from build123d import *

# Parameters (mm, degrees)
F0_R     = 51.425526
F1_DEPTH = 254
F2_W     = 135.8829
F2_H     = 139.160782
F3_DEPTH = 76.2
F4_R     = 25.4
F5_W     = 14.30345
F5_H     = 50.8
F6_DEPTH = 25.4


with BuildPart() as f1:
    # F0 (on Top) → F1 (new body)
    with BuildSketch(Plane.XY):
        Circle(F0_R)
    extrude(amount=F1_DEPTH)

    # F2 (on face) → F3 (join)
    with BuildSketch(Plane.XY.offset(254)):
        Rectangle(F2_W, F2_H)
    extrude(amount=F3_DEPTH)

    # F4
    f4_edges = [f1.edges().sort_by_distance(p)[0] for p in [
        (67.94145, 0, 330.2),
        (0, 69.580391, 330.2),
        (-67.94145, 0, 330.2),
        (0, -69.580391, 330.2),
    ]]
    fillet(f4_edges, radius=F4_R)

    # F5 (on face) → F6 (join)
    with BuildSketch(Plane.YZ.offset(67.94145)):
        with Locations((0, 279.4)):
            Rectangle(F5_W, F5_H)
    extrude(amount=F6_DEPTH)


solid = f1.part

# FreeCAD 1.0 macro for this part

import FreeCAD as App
import Part
import Sketcher

V = App.Vector
Q = App.Units.Quantity


def edges_at(feature, points):
    """Names of the edges that pass closest to the given points."""
    edges = feature.Shape.Edges
    near = lambda p: min(range(len(edges)), key=lambda i: edges[i].distToShape(Part.Vertex(*p))[0])
    return sorted({f"Edge{near(p) + 1}" for p in points})


def add_polygon(sketch, points):
    """Adds a closed chain of lines whose ends are joined by coincident constraints."""
    first, n = sketch.GeometryCount, len(points)
    for a, b in zip(points, points[1:] + points[:1]):
        sketch.addGeometry(Part.LineSegment(App.Vector(*a, 0), App.Vector(*b, 0)), False)
    for i in range(n):
        sketch.addConstraint(Sketcher.Constraint("Coincident", first + i, 2, first + (i + 1) % n, 1))

doc = App.newDocument("Part")
body = doc.addObject("PartDesign::Body", "Body")

sketch1 = body.newObject("Sketcher::SketchObject", "Sketch")
sketch1.AttachmentSupport = (doc.getObject("XY_Plane"), [""])
sketch1.MapMode = "FlatFace"
sketch1.addGeometry(Part.Circle(V(0, 0, 0), V(0, 0, 1), 51.425526), False)
sketch1.addConstraint([
    Sketcher.Constraint("Coincident", 0, 3, -1, 1),
    Sketcher.Constraint("Diameter", 0, Q("102.851052 mm")),
])
pad1 = body.newObject("PartDesign::Pad", "Pad")
pad1.Profile = sketch1
pad1.Length = Q("10 in")

sketch2 = body.newObject("Sketcher::SketchObject", "Sketch001")
sketch2.AttachmentSupport = (doc.getObject("XY_Plane"), [""])
sketch2.MapMode = "FlatFace"
sketch2.AttachmentOffset = App.Placement(V(0, 0, 10 * 25.4), App.Rotation())
add_polygon(sketch2, [(-67.94145, 69.580391), (-67.94145, -69.580391), (67.94145, -69.580391), (67.94145, 69.580391)])
sketch2.addConstraint([
    Sketcher.Constraint("Vertical", 0),
    Sketcher.Constraint("Horizontal", 1),
    Sketcher.Constraint("Vertical", 2),
    Sketcher.Constraint("Horizontal", 3),
    Sketcher.Constraint("Symmetric", 0, 2, 2, 2, -1, 1),
    Sketcher.Constraint("DistanceX", 1, 1, 1, 2, Q("135.8829 mm")),
    Sketcher.Constraint("DistanceY", 0, 2, 0, 1, Q("139.160782 mm")),
])
pad2 = body.newObject("PartDesign::Pad", "Pad001")
pad2.Profile = sketch2
pad2.Length = Q("3 in")
doc.recompute()

fillet = body.newObject("PartDesign::Fillet", "Fillet")
fillet.Base = (pad2, edges_at(pad2, [
    (67.941, 0, 330.2),
    (0, 69.58, 330.2),
    (-67.941, 0, 330.2),
    (0, -69.58, 330.2),
]))
fillet.Radius = Q("1 in")

sketch3 = body.newObject("Sketcher::SketchObject", "Sketch002")
sketch3.AttachmentSupport = (doc.getObject("YZ_Plane"), [""])
sketch3.MapMode = "FlatFace"
sketch3.AttachmentOffset = App.Placement(V(0, 0, 67.94145), App.Rotation())
add_polygon(sketch3, [(-7.151725, 304.8), (-7.151725, 254), (7.151725, 254), (7.151725, 304.8)])
sketch3.addConstraint([
    Sketcher.Constraint("Vertical", 0),
    Sketcher.Constraint("Horizontal", 1),
    Sketcher.Constraint("Vertical", 2),
    Sketcher.Constraint("Horizontal", 3),
    Sketcher.Constraint("DistanceY", 0, 2, 0, 1, Q("2 in")),
    Sketcher.Constraint("DistanceY", -1, 1, 0, 2, Q("10 in")),
    Sketcher.Constraint("DistanceX", 1, 1, 1, 2, Q("14.30345 mm")),
    Sketcher.Constraint("DistanceX", 0, 2, -1, 1, Q("7.151725 mm")),
])
pad3 = body.newObject("PartDesign::Pad", "Pad002")
pad3.Profile = sketch3
pad3.Length = Q("1 in")

doc.recompute()
